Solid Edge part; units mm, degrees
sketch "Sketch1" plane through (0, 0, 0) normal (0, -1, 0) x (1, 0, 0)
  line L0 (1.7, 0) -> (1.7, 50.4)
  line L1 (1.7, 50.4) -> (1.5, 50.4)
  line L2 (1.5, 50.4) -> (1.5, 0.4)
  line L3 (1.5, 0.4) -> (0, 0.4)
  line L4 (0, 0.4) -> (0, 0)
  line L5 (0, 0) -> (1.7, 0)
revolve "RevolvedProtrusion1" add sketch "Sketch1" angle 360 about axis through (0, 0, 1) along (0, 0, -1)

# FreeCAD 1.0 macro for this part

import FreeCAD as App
import Part
import Sketcher
Q = App.Units.Quantity

doc = App.newDocument("Part")
body = doc.addObject("PartDesign::Body", "Body")

# Sketch on XZ plane
sketch1 = doc.addObject("Sketcher::SketchObject", "Sketch")
body.addObject(sketch1)
sketch1.AttachmentSupport = (doc.XZ_Plane, [""])
sketch1.MapMode = "FlatFace"
sketch1.addGeometry(Part.LineSegment(App.Vector(0, 0, 0), App.Vector(1.7, 0, 0)), False)
sketch1.addGeometry(Part.LineSegment(App.Vector(1.7, 0, 0), App.Vector(1.7, 50.4, 0)), False)
sketch1.addGeometry(Part.LineSegment(App.Vector(1.7, 50.4, 0), App.Vector(1.5, 50.4, 0)), False)
sketch1.addGeometry(Part.LineSegment(App.Vector(1.5, 50.4, 0), App.Vector(1.5, 0.4, 0)), False)
sketch1.addGeometry(Part.LineSegment(App.Vector(1.5, 0.4, 0), App.Vector(0, 0.4, 0)), False)
sketch1.addGeometry(Part.LineSegment(App.Vector(0, 0.4, 0), App.Vector(0, 0, 0)), False)
sketch1.addConstraint(Sketcher.Constraint("Coincident", 0, 2, 1, 1))
sketch1.addConstraint(Sketcher.Constraint("Coincident", 1, 2, 2, 1))
sketch1.addConstraint(Sketcher.Constraint("Coincident", 2, 2, 3, 1))
sketch1.addConstraint(Sketcher.Constraint("Coincident", 3, 2, 4, 1))
sketch1.addConstraint(Sketcher.Constraint("Coincident", 4, 2, 5, 1))
sketch1.addConstraint(Sketcher.Constraint("Coincident", 5, 2, 0, 1))
sketch1.addConstraint(Sketcher.Constraint("Horizontal", 0))
sketch1.addConstraint(Sketcher.Constraint("Vertical", 1))
sketch1.addConstraint(Sketcher.Constraint("Horizontal", 2))
sketch1.addConstraint(Sketcher.Constraint("Vertical", 3))
sketch1.addConstraint(Sketcher.Constraint("Horizontal", 4))
sketch1.addConstraint(Sketcher.Constraint("Vertical", 5))
sketch1.addConstraint(Sketcher.Constraint("Coincident", 5, 2, -1, 1))
sketch1.addConstraint(Sketcher.Constraint("DistanceY", 3, 2, 3, 1, Q("50 mm")))
sketch1.addConstraint(Sketcher.Constraint("DistanceX", 0, 1, 0, 2, Q("1.7 mm")))
sketch1.addConstraint(Sketcher.Constraint("DistanceX", 2, 2, 2, 1, Q("0.2 mm")))
sketch1.addConstraint(Sketcher.Constraint("DistanceY", 1, 1, 1, 2, Q("50.4 mm")))
revolution = doc.addObject("PartDesign::Revolution", "Revolution")
body.addObject(revolution)
revolution.Profile = sketch1
revolution.ReferenceAxis = (sketch1, ["V_Axis"])
revolution.Angle = 360

doc.recompute()
